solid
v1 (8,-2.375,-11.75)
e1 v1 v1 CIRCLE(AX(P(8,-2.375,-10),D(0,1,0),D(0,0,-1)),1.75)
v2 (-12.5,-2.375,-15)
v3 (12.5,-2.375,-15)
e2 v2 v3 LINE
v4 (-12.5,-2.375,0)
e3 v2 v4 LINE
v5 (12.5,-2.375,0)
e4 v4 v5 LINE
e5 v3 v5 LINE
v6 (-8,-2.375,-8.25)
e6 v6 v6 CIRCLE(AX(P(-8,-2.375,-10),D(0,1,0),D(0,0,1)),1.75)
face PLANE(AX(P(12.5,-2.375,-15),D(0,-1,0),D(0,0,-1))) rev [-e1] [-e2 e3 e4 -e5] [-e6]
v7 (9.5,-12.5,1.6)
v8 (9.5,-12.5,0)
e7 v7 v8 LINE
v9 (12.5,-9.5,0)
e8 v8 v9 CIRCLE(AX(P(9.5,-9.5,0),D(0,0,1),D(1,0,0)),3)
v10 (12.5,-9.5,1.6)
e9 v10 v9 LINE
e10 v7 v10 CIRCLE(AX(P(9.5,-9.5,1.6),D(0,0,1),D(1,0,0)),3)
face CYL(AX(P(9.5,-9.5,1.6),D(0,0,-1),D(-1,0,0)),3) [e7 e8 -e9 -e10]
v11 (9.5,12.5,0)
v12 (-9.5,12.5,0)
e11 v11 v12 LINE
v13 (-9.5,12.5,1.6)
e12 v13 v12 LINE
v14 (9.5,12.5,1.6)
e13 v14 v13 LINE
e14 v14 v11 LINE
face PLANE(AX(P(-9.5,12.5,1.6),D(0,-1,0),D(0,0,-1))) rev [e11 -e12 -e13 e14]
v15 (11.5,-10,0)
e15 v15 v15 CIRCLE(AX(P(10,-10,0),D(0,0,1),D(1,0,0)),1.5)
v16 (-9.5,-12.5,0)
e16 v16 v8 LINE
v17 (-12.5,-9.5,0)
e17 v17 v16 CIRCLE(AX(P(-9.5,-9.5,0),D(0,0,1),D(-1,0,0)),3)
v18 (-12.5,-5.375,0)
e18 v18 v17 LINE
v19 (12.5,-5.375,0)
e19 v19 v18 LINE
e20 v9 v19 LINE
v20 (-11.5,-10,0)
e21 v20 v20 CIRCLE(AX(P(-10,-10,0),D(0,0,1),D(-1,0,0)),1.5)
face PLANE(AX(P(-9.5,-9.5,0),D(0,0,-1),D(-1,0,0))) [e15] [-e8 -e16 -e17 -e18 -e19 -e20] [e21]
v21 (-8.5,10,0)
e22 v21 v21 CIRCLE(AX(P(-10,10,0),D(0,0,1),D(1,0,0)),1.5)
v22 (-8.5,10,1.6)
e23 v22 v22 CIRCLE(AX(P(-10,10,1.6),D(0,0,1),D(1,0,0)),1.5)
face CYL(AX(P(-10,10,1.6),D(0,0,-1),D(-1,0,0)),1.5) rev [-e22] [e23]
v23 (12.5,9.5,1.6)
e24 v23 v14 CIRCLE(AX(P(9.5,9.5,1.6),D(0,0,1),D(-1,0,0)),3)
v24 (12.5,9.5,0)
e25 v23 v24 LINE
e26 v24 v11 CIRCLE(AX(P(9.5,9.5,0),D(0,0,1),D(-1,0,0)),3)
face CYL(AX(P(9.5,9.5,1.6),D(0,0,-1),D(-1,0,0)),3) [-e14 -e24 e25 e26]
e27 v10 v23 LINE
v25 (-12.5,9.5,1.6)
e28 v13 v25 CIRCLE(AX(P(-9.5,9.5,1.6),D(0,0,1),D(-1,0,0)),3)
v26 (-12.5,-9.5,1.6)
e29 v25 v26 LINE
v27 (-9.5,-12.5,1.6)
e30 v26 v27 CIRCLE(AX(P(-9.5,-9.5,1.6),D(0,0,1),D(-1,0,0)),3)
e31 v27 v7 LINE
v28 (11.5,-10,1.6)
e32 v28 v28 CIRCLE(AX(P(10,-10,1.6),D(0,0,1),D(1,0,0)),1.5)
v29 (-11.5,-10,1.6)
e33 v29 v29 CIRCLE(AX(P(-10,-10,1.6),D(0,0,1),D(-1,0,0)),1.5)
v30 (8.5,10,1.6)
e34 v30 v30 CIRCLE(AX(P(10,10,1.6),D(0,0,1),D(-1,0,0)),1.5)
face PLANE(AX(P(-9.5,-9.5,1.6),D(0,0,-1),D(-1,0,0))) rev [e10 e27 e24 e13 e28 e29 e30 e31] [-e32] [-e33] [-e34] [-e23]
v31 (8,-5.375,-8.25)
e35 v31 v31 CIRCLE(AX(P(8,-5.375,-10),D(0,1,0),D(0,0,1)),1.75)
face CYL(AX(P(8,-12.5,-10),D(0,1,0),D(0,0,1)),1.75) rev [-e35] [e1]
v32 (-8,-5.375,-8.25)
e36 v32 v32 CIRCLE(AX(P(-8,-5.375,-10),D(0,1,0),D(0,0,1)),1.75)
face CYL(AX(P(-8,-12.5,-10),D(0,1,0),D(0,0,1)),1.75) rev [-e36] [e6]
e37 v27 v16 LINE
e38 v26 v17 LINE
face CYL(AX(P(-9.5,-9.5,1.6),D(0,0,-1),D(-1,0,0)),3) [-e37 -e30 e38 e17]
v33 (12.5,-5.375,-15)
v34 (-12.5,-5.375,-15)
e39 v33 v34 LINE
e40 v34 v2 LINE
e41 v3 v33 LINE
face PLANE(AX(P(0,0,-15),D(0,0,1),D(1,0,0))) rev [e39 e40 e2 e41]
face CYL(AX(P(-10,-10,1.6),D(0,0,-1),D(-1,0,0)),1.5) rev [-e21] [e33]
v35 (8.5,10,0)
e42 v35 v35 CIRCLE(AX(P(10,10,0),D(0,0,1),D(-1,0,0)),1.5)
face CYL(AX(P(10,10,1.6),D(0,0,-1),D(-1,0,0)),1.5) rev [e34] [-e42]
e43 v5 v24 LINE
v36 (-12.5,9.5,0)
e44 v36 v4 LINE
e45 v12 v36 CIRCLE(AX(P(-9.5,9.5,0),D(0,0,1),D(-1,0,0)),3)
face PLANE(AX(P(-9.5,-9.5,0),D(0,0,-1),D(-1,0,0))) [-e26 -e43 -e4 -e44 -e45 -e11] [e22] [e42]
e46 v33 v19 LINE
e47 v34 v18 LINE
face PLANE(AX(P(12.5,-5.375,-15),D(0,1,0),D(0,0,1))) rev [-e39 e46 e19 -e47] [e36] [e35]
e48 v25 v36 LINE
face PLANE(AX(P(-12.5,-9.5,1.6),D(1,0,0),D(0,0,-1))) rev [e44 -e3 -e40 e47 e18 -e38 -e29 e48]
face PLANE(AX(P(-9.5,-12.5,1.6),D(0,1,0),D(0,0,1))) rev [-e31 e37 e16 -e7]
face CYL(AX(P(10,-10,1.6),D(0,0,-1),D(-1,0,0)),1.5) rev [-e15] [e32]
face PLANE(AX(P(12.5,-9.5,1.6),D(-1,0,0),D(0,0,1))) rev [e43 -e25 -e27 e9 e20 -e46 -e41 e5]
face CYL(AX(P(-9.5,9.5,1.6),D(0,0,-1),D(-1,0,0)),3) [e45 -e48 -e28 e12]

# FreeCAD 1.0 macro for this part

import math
import FreeCAD as App
import Part
import Sketcher

V = App.Vector


def add_polygon(sketch, points):
    """Adds a closed chain of lines whose ends are joined by coincident constraints."""
    first, n = sketch.GeometryCount, len(points)
    for a, b in zip(points, points[1:] + points[:1]):
        sketch.addGeometry(Part.LineSegment(App.Vector(*a, 0), App.Vector(*b, 0)), False)
    for i in range(n):
        sketch.addConstraint(Sketcher.Constraint("Coincident", first + i, 2, first + (i + 1) % n, 1))

doc = App.newDocument("Part")
body = doc.addObject("PartDesign::Body", "Body")

sketch1 = body.newObject("Sketcher::SketchObject", "Sketch")
sketch1.AttachmentSupport = (doc.getObject("XY_Plane"), [""])
sketch1.MapMode = "FlatFace"
sketch1.addGeometry(Part.LineSegment(V(-9.5, -12.5, 0), V(9.5, -12.5, 0)), False)
sketch1.addGeometry(Part.ArcOfCircle(Part.Circle(V(9.5, -9.5, 0), V(0, 0, 1), 3), math.radians(-90), math.radians(0)), False)
sketch1.addGeometry(Part.LineSegment(V(12.5, -9.5, 0), V(12.5, 9.5, 0)), False)
sketch1.addGeometry(Part.ArcOfCircle(Part.Circle(V(9.5, 9.5, 0), V(0, 0, 1), 3), math.radians(0), math.radians(90)), False)
sketch1.addGeometry(Part.LineSegment(V(9.5, 12.5, 0), V(-9.5, 12.5, 0)), False)
sketch1.addGeometry(Part.ArcOfCircle(Part.Circle(V(-9.5, 9.5, 0), V(0, 0, 1), 3), math.radians(90), math.radians(180)), False)
sketch1.addGeometry(Part.LineSegment(V(-12.5, 9.5, 0), V(-12.5, -9.5, 0)), False)
sketch1.addGeometry(Part.ArcOfCircle(Part.Circle(V(-9.5, -9.5, 0), V(0, 0, 1), 3), math.radians(180), math.radians(270)), False)
sketch1.addGeometry(Part.Circle(V(-10, -10, 0), V(0, 0, 1), 1.5), False)
sketch1.addGeometry(Part.Circle(V(10, -10, 0), V(0, 0, 1), 1.5), False)
sketch1.addGeometry(Part.Circle(V(-10, 10, 0), V(0, 0, 1), 1.5), False)
sketch1.addGeometry(Part.Circle(V(10, 10, 0), V(0, 0, 1), 1.5), False)
sketch1.addConstraint(Sketcher.Constraint("Tangent", 0, 2, 1, 1))
sketch1.addConstraint(Sketcher.Constraint("Tangent", 1, 2, 2, 1))
sketch1.addConstraint(Sketcher.Constraint("Tangent", 2, 2, 3, 1))
sketch1.addConstraint(Sketcher.Constraint("Tangent", 3, 2, 4, 1))
sketch1.addConstraint(Sketcher.Constraint("Tangent", 4, 2, 5, 1))
sketch1.addConstraint(Sketcher.Constraint("Tangent", 5, 2, 6, 1))
sketch1.addConstraint(Sketcher.Constraint("Tangent", 6, 2, 7, 1))
sketch1.addConstraint(Sketcher.Constraint("Tangent", 7, 2, 0, 1))
sketch1.addConstraint(Sketcher.Constraint("Horizontal", 0))
sketch1.addConstraint(Sketcher.Constraint("Vertical", 2))
sketch1.addConstraint(Sketcher.Constraint("Horizontal", 4))
sketch1.addConstraint(Sketcher.Constraint("Vertical", 6))
sketch1.addConstraint(Sketcher.Constraint("Equal", 1, 3))
sketch1.addConstraint(Sketcher.Constraint("Equal", 3, 5))
sketch1.addConstraint(Sketcher.Constraint("Equal", 5, 7))
sketch1.addConstraint(Sketcher.Constraint("Equal", 8, 9))
sketch1.addConstraint(Sketcher.Constraint("Equal", 9, 10))
sketch1.addConstraint(Sketcher.Constraint("Equal", 10, 11))
sketch1.addConstraint(Sketcher.Constraint("Symmetric", 1, 3, 5, 3, -1, 1))
sketch1.addConstraint(Sketcher.Constraint("Symmetric", 9, 3, 10, 3, -1, 1))
sketch1.addConstraint(Sketcher.Constraint("Symmetric", 8, 3, 11, 3, -1, 1))
sketch1.addConstraint(Sketcher.Constraint("Symmetric", 8, 3, 9, 3, -2))
sketch1.addConstraint(Sketcher.Constraint("Equal", 4, 2))
sketch1.addConstraint(Sketcher.Constraint("Diameter", 8, 3.0))
sketch1.addConstraint(Sketcher.Constraint("Radius", 1, 3.0))
sketch1.addConstraint(Sketcher.Constraint("DistanceX", 0, 1, 0, 2, 19.0))
sketch1.addConstraint(Sketcher.Constraint("DistanceX", 8, 3, -1, 1, 10.0))
sketch1.addConstraint(Sketcher.Constraint("DistanceY", 8, 3, -1, 1, 10.0))
pad1 = body.newObject("PartDesign::Pad", "Pad")
pad1.Profile = sketch1
pad1.Length = 1.6

sketch2 = body.newObject("Sketcher::SketchObject", "Sketch001")
sketch2.AttachmentSupport = (doc.getObject("XY_Plane"), [""])
sketch2.MapMode = "FlatFace"
add_polygon(sketch2, [(12.5, -2.4), (12.5, -5.4), (-12.5, -5.4), (-12.5, -2.4)])
sketch2.addConstraint(Sketcher.Constraint("Vertical", 0))
sketch2.addConstraint(Sketcher.Constraint("Horizontal", 1))
sketch2.addConstraint(Sketcher.Constraint("Vertical", 2))
sketch2.addConstraint(Sketcher.Constraint("Horizontal", 3))
sketch2.addConstraint(Sketcher.Constraint("DistanceX", 1, 2, 1, 1, 25.0))
sketch2.addConstraint(Sketcher.Constraint("DistanceY", 0, 2, 0, 1, 3.0))
sketch2.addConstraint(Sketcher.Constraint("DistanceX", -1, 1, 0, 2, 12.5))
sketch2.addConstraint(Sketcher.Constraint("DistanceY", 0, 2, -1, 1, 5.375))
pad2 = body.newObject("PartDesign::Pad", "Pad001")
pad2.Profile = sketch2
pad2.Length = 15
pad2.Reversed = True

sketch3 = body.newObject("Sketcher::SketchObject", "Sketch002")
sketch3.AttachmentSupport = (doc.getObject("XZ_Plane"), [""])
sketch3.MapMode = "FlatFace"
sketch3.AttachmentOffset = App.Placement(V(0, 0, 2.375), App.Rotation())
sketch3.addGeometry(Part.Circle(V(-8, -10, 0), V(0, 0, 1), 1.8), False)
sketch3.addGeometry(Part.Circle(V(8, -10, 0), V(0, 0, 1), 1.8), False)
sketch3.addConstraint(Sketcher.Constraint("Equal", 0, 1))
sketch3.addConstraint(Sketcher.Constraint("Symmetric", 0, 3, 1, 3, -2))
sketch3.addConstraint(Sketcher.Constraint("Diameter", 0, 3.5))
sketch3.addConstraint(Sketcher.Constraint("DistanceX", 0, 3, -1, 1, 8.0))
sketch3.addConstraint(Sketcher.Constraint("DistanceY", 0, 3, -1, 1, 10.0))
pocket1 = body.newObject("PartDesign::Pocket", "Pocket")
pocket1.Profile = sketch3
pocket1.Type = "ThroughAll"
pocket1.Reversed = True

doc.recompute()
